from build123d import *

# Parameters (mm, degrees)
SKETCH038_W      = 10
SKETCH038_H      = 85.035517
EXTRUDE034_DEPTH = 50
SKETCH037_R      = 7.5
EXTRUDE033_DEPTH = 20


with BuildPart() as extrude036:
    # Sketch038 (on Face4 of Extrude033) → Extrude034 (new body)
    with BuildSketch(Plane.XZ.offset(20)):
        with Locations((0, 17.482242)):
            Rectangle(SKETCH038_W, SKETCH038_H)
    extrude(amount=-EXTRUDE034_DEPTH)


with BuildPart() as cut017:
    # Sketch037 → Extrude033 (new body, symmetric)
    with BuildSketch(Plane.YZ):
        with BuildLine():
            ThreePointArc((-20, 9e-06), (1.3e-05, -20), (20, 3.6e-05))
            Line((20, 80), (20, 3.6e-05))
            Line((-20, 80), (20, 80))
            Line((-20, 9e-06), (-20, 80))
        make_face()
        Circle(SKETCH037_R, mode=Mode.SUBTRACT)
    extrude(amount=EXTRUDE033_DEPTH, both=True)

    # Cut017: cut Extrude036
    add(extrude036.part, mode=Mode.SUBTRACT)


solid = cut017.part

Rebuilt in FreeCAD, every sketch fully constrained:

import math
import FreeCAD as App
import Part
import Sketcher


def add_polygon(sketch, points):
    """Adds a closed chain of lines whose ends are joined by coincident constraints."""
    first, n = sketch.GeometryCount, len(points)
    for a, b in zip(points, points[1:] + points[:1]):
        sketch.addGeometry(Part.LineSegment(App.Vector(*a, 0), App.Vector(*b, 0)), False)
    for i in range(n):
        sketch.addConstraint(Sketcher.Constraint("Coincident", first + i, 2, first + (i + 1) % n, 1))

doc = App.newDocument("Part")
body = doc.addObject("PartDesign::Body", "Body")

# Sketch on XZ plane
sketch1 = body.newObject("Sketcher::SketchObject", "Sketch")
sketch1.AttachmentSupport = (doc.getObject("XZ_Plane"), [""])
sketch1.MapMode = "FlatFace"
sketch1.AttachmentOffset = App.Placement(App.Vector(0, 0, 20), App.Rotation())
add_polygon(sketch1, [(-5, 60), (-5, -25), (5, -25), (5, 60)])  # lines 0-3
sketch1.addConstraint(Sketcher.Constraint("Vertical", 0))
sketch1.addConstraint(Sketcher.Constraint("Horizontal", 1))
sketch1.addConstraint(Sketcher.Constraint("Vertical", 2))
sketch1.addConstraint(Sketcher.Constraint("Horizontal", 3))
sketch1.addConstraint(Sketcher.Constraint("DistanceX", 1, 1, 1, 2, 10.0))
sketch1.addConstraint(Sketcher.Constraint("DistanceX", 0, 2, -1, 1, 5.0))
sketch1.addConstraint(Sketcher.Constraint("DistanceY", -1, 1, 2, 2, 60.0))
sketch1.addConstraint(Sketcher.Constraint("DistanceY", 0, 2, 0, 1, 85.035517))
pad1 = body.newObject("PartDesign::Pad", "Pad")
pad1.Profile = sketch1
pad1.Length = 50
pad1.Reversed = True
body2 = doc.addObject("PartDesign::Body", "Body001")

# Sketch on YZ plane
sketch2 = body2.newObject("Sketcher::SketchObject", "Sketch001")
sketch2.AttachmentSupport = (doc.getObject("YZ_Plane001"), [""])
sketch2.MapMode = "FlatFace"
sketch2.addGeometry(Part.ArcOfCircle(Part.Circle(App.Vector(0, 0, 0), App.Vector(0, 0, 1), 20), math.radians(179.999974), math.radians(360.000103)), False)
sketch2.addGeometry(Part.LineSegment(App.Vector(20, 0.000036, 0), App.Vector(20, 80, 0)), False)
sketch2.addGeometry(Part.LineSegment(App.Vector(20, 80, 0), App.Vector(-20, 80, 0)), False)
sketch2.addGeometry(Part.LineSegment(App.Vector(-20, 80, 0), App.Vector(-20, 0.000009, 0)), False)
sketch2.addGeometry(Part.Circle(App.Vector(0, 0, 0), App.Vector(0, 0, 1), 7.5), False)
sketch2.addConstraint(Sketcher.Constraint("Coincident", 0, 2, 1, 1))
sketch2.addConstraint(Sketcher.Constraint("Coincident", 1, 2, 2, 1))
sketch2.addConstraint(Sketcher.Constraint("Coincident", 2, 2, 3, 1))
sketch2.addConstraint(Sketcher.Constraint("Coincident", 3, 2, 0, 1))
sketch2.addConstraint(Sketcher.Constraint("Vertical", 1))
sketch2.addConstraint(Sketcher.Constraint("Horizontal", 2))
sketch2.addConstraint(Sketcher.Constraint("Vertical", 3))
sketch2.addConstraint(Sketcher.Constraint("Coincident", 0, 3, -1, 1))
sketch2.addConstraint(Sketcher.Constraint("Coincident", 4, 3, -1, 1))
sketch2.addConstraint(Sketcher.Constraint("Diameter", 4, 15.0))
sketch2.addConstraint(Sketcher.Constraint("Radius", 0, 20.0))
sketch2.addConstraint(Sketcher.Constraint("DistanceY", -1, 1, 1, 2, 80.0))
sketch2.addConstraint(Sketcher.Constraint("DistanceY", 3, 2, 3, 1, 79.999991))
sketch2.addConstraint(Sketcher.Constraint("DistanceY", 1, 1, 1, 2, 79.999964))
pad2 = body2.newObject("PartDesign::Pad", "Pad001")
pad2.Profile = sketch2
pad2.Length = 40
pad2.Midplane = True
doc.recompute()

boolean = body2.newObject("PartDesign::Boolean", "Boolean")
boolean.Type = "Cut"
boolean.addObjects([body])

doc.recompute()
